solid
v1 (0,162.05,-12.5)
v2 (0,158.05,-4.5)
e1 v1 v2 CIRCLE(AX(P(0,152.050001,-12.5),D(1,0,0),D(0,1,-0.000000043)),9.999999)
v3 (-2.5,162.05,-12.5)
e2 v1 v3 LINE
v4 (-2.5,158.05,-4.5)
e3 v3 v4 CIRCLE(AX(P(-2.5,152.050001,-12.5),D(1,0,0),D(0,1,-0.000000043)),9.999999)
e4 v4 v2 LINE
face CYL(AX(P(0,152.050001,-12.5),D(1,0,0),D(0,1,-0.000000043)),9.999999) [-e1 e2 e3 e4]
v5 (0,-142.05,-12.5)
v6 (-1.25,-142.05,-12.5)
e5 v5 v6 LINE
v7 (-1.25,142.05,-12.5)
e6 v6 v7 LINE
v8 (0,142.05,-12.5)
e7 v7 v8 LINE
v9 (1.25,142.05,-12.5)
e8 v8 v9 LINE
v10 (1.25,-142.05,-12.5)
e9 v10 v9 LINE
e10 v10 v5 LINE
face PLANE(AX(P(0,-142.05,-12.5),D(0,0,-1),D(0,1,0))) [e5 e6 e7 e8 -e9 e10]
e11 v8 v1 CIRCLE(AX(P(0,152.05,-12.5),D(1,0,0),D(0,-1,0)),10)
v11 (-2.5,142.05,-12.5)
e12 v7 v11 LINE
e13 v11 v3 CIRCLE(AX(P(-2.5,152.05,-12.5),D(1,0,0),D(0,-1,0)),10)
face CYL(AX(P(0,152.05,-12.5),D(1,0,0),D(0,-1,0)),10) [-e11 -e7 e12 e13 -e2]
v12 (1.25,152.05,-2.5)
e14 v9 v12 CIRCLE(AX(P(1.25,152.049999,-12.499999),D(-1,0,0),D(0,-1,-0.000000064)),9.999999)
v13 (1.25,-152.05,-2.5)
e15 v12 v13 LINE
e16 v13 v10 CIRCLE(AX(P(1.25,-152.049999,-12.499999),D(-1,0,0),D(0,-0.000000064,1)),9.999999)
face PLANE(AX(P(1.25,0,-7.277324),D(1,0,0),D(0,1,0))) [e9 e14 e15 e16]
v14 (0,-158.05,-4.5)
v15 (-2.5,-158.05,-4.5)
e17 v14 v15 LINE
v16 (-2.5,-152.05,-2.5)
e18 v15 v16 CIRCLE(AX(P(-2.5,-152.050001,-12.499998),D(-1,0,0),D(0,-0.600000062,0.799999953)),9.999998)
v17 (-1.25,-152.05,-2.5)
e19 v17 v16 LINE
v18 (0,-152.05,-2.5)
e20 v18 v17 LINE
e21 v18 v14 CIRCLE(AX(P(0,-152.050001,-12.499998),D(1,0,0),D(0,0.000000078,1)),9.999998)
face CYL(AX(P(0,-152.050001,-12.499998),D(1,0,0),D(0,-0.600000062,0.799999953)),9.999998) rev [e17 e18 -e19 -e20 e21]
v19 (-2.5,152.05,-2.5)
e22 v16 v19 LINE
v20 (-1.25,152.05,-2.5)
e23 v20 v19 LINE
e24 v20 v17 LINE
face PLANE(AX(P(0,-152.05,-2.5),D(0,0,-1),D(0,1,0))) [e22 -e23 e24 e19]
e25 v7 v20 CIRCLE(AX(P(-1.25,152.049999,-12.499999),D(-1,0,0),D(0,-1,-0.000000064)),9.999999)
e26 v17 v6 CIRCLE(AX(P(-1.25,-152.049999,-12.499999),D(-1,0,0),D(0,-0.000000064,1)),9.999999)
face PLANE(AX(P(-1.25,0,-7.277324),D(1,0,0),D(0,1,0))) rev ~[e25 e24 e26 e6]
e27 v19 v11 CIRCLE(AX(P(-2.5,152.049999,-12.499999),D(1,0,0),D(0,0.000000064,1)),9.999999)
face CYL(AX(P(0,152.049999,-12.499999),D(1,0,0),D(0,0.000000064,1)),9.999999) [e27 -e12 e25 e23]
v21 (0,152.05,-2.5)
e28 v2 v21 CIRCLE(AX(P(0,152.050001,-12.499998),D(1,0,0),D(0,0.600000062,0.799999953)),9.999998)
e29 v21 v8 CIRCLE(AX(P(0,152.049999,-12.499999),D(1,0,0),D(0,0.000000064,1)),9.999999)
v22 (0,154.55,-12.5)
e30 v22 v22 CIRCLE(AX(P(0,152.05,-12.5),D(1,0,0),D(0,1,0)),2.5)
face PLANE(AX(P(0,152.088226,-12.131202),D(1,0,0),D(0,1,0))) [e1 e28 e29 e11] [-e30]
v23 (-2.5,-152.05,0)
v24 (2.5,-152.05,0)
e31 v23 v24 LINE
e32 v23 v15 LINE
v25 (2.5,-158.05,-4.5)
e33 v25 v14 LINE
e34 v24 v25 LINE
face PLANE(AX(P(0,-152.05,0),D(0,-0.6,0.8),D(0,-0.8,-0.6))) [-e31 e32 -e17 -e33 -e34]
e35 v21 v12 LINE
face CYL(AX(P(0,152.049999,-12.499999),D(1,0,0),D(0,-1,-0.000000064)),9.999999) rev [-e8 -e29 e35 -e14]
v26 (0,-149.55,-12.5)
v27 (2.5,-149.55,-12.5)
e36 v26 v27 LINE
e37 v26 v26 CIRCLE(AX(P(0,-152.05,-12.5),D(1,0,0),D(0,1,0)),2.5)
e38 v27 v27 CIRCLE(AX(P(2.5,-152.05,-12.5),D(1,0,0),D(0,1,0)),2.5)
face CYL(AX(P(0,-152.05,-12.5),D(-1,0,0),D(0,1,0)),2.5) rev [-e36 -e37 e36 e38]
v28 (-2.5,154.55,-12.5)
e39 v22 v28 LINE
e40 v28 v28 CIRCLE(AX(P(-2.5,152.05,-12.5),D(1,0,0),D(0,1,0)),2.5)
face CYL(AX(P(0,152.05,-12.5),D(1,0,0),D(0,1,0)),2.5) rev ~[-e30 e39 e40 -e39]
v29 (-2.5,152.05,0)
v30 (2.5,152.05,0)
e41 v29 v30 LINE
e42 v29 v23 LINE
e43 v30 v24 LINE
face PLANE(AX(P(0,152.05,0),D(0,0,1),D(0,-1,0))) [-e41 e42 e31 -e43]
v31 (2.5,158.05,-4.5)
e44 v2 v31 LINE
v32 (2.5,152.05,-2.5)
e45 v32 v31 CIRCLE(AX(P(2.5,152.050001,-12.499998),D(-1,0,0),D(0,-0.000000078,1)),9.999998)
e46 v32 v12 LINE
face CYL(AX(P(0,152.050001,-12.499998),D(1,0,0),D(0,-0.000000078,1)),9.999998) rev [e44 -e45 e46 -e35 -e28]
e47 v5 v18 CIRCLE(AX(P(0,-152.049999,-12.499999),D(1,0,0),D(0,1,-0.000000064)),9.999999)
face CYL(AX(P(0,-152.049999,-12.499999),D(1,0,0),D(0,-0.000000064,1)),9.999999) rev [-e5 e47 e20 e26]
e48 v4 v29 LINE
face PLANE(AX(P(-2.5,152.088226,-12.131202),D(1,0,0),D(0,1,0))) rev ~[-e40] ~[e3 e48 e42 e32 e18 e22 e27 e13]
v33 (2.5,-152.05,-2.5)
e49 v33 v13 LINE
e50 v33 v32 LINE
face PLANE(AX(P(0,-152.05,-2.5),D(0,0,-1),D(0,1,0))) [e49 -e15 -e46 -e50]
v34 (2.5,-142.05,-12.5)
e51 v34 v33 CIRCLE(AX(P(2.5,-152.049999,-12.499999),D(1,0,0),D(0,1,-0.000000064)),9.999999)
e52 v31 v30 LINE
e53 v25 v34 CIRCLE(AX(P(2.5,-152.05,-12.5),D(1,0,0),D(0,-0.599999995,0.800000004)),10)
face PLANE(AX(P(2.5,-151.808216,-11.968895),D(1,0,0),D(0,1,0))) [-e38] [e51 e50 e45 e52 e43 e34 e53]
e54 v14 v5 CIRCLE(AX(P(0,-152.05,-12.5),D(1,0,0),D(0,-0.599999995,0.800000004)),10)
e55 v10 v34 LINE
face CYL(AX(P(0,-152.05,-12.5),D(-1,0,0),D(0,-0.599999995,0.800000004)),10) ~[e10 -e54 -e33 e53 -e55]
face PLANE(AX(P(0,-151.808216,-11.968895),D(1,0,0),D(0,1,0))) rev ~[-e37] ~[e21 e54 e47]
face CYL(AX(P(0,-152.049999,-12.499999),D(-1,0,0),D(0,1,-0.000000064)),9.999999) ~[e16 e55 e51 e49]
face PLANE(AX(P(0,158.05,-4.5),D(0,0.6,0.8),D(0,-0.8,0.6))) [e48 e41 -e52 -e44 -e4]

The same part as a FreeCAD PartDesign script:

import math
import FreeCAD as App
import Part
import Sketcher

V = App.Vector
Q = App.Units.Quantity

doc = App.newDocument("Part")
params = doc.addObject("Spreadsheet::Sheet", "Params")
for row, (alias, value) in enumerate([
    ("sketch1_width", "304.1 mm"),
    ("sketch1_width2", "5.999999 mm"),
    ("pad1_length", "5 mm"),
    ("sketch2_radius", "9.999999 mm"),
    ("sketch2_width", "284.1 mm"),
    ("pad2_length", "2.5 mm"),
    ("sketch3_diameter", "5 mm"),
    ("sketch3_radius", "10 mm"),
    ("pad3_length", "2.5 mm"),
    ("sketch4_diameter", "5 mm"),
    ("sketch4_radius", "10 mm"),
    ("pad4_length", "2.5 mm"),
], start=1):
    params.set(f"A{row}", alias)
    params.set(f"B{row}", "=" + value)
    params.setAlias(f"B{row}", alias)

body = doc.addObject("PartDesign::Body", "Body")

# Sketch on YZ plane
sketch1 = doc.addObject("Sketcher::SketchObject", "Sketch")
body.addObject(sketch1)
sketch1.AttachmentSupport = (doc.YZ_Plane, [""])
sketch1.MapMode = "FlatFace"
sketch1.addGeometry([
    Part.ArcOfCircle(Part.Circle(V(152, -12, 0), V(0, 0, 1), 10), math.radians(53), math.radians(90)),  # 0
    Part.LineSegment(V(158, -4, 0), V(152, 0, 0)),  # 1
    Part.LineSegment(V(152, 0, 0), V(-152, 0, 0)),  # 2
    Part.LineSegment(V(-152, 0, 0), V(-158, -4, 0)),  # 3
    Part.ArcOfCircle(Part.Circle(V(-152, -12, 0), V(0, 0, 1), 10), math.radians(90), math.radians(127)),  # 4
    Part.LineSegment(V(-152, -2, 0), V(152, -2, 0)),  # 5
], False)
sketch1.addConstraint([
    Sketcher.Constraint("Tangent", 0, 1, 1, 1),
    Sketcher.Constraint("Coincident", 1, 2, 2, 1),
    Sketcher.Constraint("Coincident", 2, 2, 3, 1),
    Sketcher.Constraint("Tangent", 3, 2, 4, 2),
    Sketcher.Constraint("Tangent", 4, 1, 5, 1),
    Sketcher.Constraint("Tangent", 5, 2, 0, 2),
    Sketcher.Constraint("Horizontal", 2),
    Sketcher.Constraint("Horizontal", 5),
    Sketcher.Constraint("Equal", 0, 4),
    Sketcher.Constraint("Symmetric", 1, 2, 2, 2, -1, 1),
    Sketcher.Constraint("Horizontal", 0, 1, 3, 2),
    Sketcher.Constraint("Vertical", 0, 3, 1, 2),
    Sketcher.Constraint("DistanceX", 2, 2, 2, 1, Q("304.1 mm")),
    Sketcher.Constraint("DistanceX", 0, 3, 0, 1, Q("5.999999 mm")),
    Sketcher.Constraint("DistanceY", 3, 2, 4, 1, Q("2 mm")),
])
sketch1.setExpression("Constraints[12]", "Params.sketch1_width")
sketch1.setExpression("Constraints[13]", "Params.sketch1_width2")
pad1 = doc.addObject("PartDesign::Pad", "Pad")
body.addObject(pad1)
pad1.Profile = sketch1
pad1.setExpression("Length", "Params.pad1_length")
pad1.Midplane = True
body2 = doc.addObject("PartDesign::Body", "Body001")

# Sketch on YZ plane
sketch2 = doc.addObject("Sketcher::SketchObject", "Sketch001")
body2.addObject(sketch2)
sketch2.AttachmentSupport = (doc.getObject("YZ_Plane001"), [""])
sketch2.MapMode = "FlatFace"
sketch2.addGeometry([
    Part.LineSegment(V(-142, -12, 0), V(142, -12, 0)),
    Part.ArcOfCircle(Part.Circle(V(152, -12, 0), V(0, 0, 1), 10), math.radians(90), math.radians(180)),
    Part.LineSegment(V(152, -2, 0), V(-152, -2, 0)),
    Part.ArcOfCircle(Part.Circle(V(-152, -12, 0), V(0, 0, 1), 10), math.radians(0), math.radians(90)),
], False)
sketch2.addConstraint([
    Sketcher.Constraint("Coincident", 0, 2, 1, 2),
    Sketcher.Constraint("Tangent", 1, 1, 2, 1),
    Sketcher.Constraint("Tangent", 2, 2, 3, 2),
    Sketcher.Constraint("Coincident", 3, 1, 0, 1),
    Sketcher.Constraint("Horizontal", 0),
    Sketcher.Constraint("Horizontal", 2),
    Sketcher.Constraint("Equal", 1, 3),
    Sketcher.Constraint("Horizontal", 3, 3, 0, 2),
    Sketcher.Constraint("Radius", 1, Q("9.999999 mm")),
    Sketcher.Constraint("DistanceX", 0, 1, 0, 2, Q("284.1 mm")),
    Sketcher.Constraint("DistanceY", 1, 3, -1, 1, Q("12.499999 mm")),
    Sketcher.Constraint("DistanceX", -1, 1, 1, 3, Q("152.049999 mm")),
])
sketch2.setExpression("Constraints[8]", "Params.sketch2_radius")
sketch2.setExpression("Constraints[9]", "Params.sketch2_width")
pad2 = doc.addObject("PartDesign::Pad", "Pad001")
body2.addObject(pad2)
pad2.Profile = sketch2
pad2.setExpression("Length", "Params.pad2_length")
pad2.Midplane = True
doc.recompute()

boolean = doc.addObject("PartDesign::Boolean", "Boolean")
body.addObject(boolean)
boolean.Type = "Fuse"
boolean.addObjects([body2])

# Sketch on YZ plane
sketch3 = doc.addObject("Sketcher::SketchObject", "Sketch002")
body.addObject(sketch3)
sketch3.AttachmentSupport = (doc.YZ_Plane, [""])
sketch3.MapMode = "FlatFace"
sketch3.addGeometry([
    Part.ArcOfCircle(Part.Circle(V(-152.1, -12.5, 0), V(0, 0, 1), 10), math.radians(127), math.radians(360)),
    Part.ArcOfCircle(Part.Circle(V(-152, -12.5, 0), V(0, 0, 1), 10), math.radians(0), math.radians(90)),
    Part.ArcOfCircle(Part.Circle(V(-152.1, -12.5, 0), V(0, 0, 1), 10), math.radians(90), math.radians(127)),
    Part.Circle(V(-152.1, -12.5, 0), V(0, 0, 1), 2.5),
], False)
sketch3.addConstraint([
    Sketcher.Constraint("Tangent", 0, 2, 1, 1),
    Sketcher.Constraint("Tangent", 1, 2, 2, 1),
    Sketcher.Constraint("Tangent", 2, 2, 0, 1),
    Sketcher.Constraint("Coincident", 3, 3, 0, 3),
    Sketcher.Constraint("Horizontal", 3, 3, 0, 2),
    Sketcher.Constraint("Vertical", 3, 3, 1, 2),
    Sketcher.Constraint("Diameter", 3, Q("5 mm")),
    Sketcher.Constraint("Radius", 0, Q("10 mm")),
    Sketcher.Constraint("DistanceX", 2, 2, 1, 2, Q("6 mm")),
    Sketcher.Constraint("DistanceY", 0, 3, -1, 1, Q("12.5 mm")),
    Sketcher.Constraint("DistanceX", 0, 3, -1, 1, Q("152.05 mm")),
])
sketch3.setExpression("Constraints[6]", "Params.sketch3_diameter")
sketch3.setExpression("Constraints[7]", "Params.sketch3_radius")
pad3 = doc.addObject("PartDesign::Pad", "Pad002")
body.addObject(pad3)
pad3.Profile = sketch3
pad3.setExpression("Length", "Params.pad3_length")

# Sketch on YZ plane
sketch4 = doc.addObject("Sketcher::SketchObject", "Sketch003")
body.addObject(sketch4)
sketch4.AttachmentSupport = (doc.YZ_Plane, [""])
sketch4.MapMode = "FlatFace"
sketch4.addGeometry([
    Part.ArcOfCircle(Part.Circle(V(152.1, -12.5, 0), V(0, 0, 1), 10), math.radians(180), math.radians(360)),  # 0
    Part.ArcOfCircle(Part.Circle(V(152.1, -12.5, 0), V(0, 0, 1), 10), math.radians(0), math.radians(53)),  # 1
    Part.ArcOfCircle(Part.Circle(V(152.1, -12.5, 0), V(0, 0, 1), 10), math.radians(53), math.radians(90)),  # 2
    Part.ArcOfCircle(Part.Circle(V(152, -12.5, 0), V(0, 0, 1), 10), math.radians(90), math.radians(180)),  # 3
    Part.Circle(V(152.1, -12.5, 0), V(0, 0, 1), 2.5),  # 4
], False)
sketch4.addConstraint([
    Sketcher.Constraint("Tangent", 0, 2, 1, 1),
    Sketcher.Constraint("Tangent", 1, 2, 2, 1),
    Sketcher.Constraint("Tangent", 2, 2, 3, 1),
    Sketcher.Constraint("Tangent", 3, 2, 0, 1),
    Sketcher.Constraint("Coincident", 4, 3, 0, 3),
    Sketcher.Constraint("Equal", 0, 1),
    Sketcher.Constraint("Horizontal", 4, 3, 0, 2),
    Sketcher.Constraint("Horizontal", 0, 2, 3, 2),
    Sketcher.Constraint("Vertical", 4, 3, 2, 2),
    Sketcher.Constraint("Diameter", 4, Q("5 mm")),
    Sketcher.Constraint("Radius", 0, Q("10 mm")),
    Sketcher.Constraint("DistanceX", 1, 2, 0, 2, Q("4 mm")),
    Sketcher.Constraint("DistanceY", 0, 3, -1, 1, Q("12.5 mm")),
    Sketcher.Constraint("DistanceX", -1, 1, 0, 3, Q("152.05 mm")),
])
sketch4.setExpression("Constraints[9]", "Params.sketch4_diameter")
sketch4.setExpression("Constraints[10]", "Params.sketch4_radius")
pad4 = doc.addObject("PartDesign::Pad", "Pad003")
body.addObject(pad4)
pad4.Profile = sketch4
pad4.setExpression("Length", "Params.pad4_length")
pad4.Reversed = True

doc.recompute()
